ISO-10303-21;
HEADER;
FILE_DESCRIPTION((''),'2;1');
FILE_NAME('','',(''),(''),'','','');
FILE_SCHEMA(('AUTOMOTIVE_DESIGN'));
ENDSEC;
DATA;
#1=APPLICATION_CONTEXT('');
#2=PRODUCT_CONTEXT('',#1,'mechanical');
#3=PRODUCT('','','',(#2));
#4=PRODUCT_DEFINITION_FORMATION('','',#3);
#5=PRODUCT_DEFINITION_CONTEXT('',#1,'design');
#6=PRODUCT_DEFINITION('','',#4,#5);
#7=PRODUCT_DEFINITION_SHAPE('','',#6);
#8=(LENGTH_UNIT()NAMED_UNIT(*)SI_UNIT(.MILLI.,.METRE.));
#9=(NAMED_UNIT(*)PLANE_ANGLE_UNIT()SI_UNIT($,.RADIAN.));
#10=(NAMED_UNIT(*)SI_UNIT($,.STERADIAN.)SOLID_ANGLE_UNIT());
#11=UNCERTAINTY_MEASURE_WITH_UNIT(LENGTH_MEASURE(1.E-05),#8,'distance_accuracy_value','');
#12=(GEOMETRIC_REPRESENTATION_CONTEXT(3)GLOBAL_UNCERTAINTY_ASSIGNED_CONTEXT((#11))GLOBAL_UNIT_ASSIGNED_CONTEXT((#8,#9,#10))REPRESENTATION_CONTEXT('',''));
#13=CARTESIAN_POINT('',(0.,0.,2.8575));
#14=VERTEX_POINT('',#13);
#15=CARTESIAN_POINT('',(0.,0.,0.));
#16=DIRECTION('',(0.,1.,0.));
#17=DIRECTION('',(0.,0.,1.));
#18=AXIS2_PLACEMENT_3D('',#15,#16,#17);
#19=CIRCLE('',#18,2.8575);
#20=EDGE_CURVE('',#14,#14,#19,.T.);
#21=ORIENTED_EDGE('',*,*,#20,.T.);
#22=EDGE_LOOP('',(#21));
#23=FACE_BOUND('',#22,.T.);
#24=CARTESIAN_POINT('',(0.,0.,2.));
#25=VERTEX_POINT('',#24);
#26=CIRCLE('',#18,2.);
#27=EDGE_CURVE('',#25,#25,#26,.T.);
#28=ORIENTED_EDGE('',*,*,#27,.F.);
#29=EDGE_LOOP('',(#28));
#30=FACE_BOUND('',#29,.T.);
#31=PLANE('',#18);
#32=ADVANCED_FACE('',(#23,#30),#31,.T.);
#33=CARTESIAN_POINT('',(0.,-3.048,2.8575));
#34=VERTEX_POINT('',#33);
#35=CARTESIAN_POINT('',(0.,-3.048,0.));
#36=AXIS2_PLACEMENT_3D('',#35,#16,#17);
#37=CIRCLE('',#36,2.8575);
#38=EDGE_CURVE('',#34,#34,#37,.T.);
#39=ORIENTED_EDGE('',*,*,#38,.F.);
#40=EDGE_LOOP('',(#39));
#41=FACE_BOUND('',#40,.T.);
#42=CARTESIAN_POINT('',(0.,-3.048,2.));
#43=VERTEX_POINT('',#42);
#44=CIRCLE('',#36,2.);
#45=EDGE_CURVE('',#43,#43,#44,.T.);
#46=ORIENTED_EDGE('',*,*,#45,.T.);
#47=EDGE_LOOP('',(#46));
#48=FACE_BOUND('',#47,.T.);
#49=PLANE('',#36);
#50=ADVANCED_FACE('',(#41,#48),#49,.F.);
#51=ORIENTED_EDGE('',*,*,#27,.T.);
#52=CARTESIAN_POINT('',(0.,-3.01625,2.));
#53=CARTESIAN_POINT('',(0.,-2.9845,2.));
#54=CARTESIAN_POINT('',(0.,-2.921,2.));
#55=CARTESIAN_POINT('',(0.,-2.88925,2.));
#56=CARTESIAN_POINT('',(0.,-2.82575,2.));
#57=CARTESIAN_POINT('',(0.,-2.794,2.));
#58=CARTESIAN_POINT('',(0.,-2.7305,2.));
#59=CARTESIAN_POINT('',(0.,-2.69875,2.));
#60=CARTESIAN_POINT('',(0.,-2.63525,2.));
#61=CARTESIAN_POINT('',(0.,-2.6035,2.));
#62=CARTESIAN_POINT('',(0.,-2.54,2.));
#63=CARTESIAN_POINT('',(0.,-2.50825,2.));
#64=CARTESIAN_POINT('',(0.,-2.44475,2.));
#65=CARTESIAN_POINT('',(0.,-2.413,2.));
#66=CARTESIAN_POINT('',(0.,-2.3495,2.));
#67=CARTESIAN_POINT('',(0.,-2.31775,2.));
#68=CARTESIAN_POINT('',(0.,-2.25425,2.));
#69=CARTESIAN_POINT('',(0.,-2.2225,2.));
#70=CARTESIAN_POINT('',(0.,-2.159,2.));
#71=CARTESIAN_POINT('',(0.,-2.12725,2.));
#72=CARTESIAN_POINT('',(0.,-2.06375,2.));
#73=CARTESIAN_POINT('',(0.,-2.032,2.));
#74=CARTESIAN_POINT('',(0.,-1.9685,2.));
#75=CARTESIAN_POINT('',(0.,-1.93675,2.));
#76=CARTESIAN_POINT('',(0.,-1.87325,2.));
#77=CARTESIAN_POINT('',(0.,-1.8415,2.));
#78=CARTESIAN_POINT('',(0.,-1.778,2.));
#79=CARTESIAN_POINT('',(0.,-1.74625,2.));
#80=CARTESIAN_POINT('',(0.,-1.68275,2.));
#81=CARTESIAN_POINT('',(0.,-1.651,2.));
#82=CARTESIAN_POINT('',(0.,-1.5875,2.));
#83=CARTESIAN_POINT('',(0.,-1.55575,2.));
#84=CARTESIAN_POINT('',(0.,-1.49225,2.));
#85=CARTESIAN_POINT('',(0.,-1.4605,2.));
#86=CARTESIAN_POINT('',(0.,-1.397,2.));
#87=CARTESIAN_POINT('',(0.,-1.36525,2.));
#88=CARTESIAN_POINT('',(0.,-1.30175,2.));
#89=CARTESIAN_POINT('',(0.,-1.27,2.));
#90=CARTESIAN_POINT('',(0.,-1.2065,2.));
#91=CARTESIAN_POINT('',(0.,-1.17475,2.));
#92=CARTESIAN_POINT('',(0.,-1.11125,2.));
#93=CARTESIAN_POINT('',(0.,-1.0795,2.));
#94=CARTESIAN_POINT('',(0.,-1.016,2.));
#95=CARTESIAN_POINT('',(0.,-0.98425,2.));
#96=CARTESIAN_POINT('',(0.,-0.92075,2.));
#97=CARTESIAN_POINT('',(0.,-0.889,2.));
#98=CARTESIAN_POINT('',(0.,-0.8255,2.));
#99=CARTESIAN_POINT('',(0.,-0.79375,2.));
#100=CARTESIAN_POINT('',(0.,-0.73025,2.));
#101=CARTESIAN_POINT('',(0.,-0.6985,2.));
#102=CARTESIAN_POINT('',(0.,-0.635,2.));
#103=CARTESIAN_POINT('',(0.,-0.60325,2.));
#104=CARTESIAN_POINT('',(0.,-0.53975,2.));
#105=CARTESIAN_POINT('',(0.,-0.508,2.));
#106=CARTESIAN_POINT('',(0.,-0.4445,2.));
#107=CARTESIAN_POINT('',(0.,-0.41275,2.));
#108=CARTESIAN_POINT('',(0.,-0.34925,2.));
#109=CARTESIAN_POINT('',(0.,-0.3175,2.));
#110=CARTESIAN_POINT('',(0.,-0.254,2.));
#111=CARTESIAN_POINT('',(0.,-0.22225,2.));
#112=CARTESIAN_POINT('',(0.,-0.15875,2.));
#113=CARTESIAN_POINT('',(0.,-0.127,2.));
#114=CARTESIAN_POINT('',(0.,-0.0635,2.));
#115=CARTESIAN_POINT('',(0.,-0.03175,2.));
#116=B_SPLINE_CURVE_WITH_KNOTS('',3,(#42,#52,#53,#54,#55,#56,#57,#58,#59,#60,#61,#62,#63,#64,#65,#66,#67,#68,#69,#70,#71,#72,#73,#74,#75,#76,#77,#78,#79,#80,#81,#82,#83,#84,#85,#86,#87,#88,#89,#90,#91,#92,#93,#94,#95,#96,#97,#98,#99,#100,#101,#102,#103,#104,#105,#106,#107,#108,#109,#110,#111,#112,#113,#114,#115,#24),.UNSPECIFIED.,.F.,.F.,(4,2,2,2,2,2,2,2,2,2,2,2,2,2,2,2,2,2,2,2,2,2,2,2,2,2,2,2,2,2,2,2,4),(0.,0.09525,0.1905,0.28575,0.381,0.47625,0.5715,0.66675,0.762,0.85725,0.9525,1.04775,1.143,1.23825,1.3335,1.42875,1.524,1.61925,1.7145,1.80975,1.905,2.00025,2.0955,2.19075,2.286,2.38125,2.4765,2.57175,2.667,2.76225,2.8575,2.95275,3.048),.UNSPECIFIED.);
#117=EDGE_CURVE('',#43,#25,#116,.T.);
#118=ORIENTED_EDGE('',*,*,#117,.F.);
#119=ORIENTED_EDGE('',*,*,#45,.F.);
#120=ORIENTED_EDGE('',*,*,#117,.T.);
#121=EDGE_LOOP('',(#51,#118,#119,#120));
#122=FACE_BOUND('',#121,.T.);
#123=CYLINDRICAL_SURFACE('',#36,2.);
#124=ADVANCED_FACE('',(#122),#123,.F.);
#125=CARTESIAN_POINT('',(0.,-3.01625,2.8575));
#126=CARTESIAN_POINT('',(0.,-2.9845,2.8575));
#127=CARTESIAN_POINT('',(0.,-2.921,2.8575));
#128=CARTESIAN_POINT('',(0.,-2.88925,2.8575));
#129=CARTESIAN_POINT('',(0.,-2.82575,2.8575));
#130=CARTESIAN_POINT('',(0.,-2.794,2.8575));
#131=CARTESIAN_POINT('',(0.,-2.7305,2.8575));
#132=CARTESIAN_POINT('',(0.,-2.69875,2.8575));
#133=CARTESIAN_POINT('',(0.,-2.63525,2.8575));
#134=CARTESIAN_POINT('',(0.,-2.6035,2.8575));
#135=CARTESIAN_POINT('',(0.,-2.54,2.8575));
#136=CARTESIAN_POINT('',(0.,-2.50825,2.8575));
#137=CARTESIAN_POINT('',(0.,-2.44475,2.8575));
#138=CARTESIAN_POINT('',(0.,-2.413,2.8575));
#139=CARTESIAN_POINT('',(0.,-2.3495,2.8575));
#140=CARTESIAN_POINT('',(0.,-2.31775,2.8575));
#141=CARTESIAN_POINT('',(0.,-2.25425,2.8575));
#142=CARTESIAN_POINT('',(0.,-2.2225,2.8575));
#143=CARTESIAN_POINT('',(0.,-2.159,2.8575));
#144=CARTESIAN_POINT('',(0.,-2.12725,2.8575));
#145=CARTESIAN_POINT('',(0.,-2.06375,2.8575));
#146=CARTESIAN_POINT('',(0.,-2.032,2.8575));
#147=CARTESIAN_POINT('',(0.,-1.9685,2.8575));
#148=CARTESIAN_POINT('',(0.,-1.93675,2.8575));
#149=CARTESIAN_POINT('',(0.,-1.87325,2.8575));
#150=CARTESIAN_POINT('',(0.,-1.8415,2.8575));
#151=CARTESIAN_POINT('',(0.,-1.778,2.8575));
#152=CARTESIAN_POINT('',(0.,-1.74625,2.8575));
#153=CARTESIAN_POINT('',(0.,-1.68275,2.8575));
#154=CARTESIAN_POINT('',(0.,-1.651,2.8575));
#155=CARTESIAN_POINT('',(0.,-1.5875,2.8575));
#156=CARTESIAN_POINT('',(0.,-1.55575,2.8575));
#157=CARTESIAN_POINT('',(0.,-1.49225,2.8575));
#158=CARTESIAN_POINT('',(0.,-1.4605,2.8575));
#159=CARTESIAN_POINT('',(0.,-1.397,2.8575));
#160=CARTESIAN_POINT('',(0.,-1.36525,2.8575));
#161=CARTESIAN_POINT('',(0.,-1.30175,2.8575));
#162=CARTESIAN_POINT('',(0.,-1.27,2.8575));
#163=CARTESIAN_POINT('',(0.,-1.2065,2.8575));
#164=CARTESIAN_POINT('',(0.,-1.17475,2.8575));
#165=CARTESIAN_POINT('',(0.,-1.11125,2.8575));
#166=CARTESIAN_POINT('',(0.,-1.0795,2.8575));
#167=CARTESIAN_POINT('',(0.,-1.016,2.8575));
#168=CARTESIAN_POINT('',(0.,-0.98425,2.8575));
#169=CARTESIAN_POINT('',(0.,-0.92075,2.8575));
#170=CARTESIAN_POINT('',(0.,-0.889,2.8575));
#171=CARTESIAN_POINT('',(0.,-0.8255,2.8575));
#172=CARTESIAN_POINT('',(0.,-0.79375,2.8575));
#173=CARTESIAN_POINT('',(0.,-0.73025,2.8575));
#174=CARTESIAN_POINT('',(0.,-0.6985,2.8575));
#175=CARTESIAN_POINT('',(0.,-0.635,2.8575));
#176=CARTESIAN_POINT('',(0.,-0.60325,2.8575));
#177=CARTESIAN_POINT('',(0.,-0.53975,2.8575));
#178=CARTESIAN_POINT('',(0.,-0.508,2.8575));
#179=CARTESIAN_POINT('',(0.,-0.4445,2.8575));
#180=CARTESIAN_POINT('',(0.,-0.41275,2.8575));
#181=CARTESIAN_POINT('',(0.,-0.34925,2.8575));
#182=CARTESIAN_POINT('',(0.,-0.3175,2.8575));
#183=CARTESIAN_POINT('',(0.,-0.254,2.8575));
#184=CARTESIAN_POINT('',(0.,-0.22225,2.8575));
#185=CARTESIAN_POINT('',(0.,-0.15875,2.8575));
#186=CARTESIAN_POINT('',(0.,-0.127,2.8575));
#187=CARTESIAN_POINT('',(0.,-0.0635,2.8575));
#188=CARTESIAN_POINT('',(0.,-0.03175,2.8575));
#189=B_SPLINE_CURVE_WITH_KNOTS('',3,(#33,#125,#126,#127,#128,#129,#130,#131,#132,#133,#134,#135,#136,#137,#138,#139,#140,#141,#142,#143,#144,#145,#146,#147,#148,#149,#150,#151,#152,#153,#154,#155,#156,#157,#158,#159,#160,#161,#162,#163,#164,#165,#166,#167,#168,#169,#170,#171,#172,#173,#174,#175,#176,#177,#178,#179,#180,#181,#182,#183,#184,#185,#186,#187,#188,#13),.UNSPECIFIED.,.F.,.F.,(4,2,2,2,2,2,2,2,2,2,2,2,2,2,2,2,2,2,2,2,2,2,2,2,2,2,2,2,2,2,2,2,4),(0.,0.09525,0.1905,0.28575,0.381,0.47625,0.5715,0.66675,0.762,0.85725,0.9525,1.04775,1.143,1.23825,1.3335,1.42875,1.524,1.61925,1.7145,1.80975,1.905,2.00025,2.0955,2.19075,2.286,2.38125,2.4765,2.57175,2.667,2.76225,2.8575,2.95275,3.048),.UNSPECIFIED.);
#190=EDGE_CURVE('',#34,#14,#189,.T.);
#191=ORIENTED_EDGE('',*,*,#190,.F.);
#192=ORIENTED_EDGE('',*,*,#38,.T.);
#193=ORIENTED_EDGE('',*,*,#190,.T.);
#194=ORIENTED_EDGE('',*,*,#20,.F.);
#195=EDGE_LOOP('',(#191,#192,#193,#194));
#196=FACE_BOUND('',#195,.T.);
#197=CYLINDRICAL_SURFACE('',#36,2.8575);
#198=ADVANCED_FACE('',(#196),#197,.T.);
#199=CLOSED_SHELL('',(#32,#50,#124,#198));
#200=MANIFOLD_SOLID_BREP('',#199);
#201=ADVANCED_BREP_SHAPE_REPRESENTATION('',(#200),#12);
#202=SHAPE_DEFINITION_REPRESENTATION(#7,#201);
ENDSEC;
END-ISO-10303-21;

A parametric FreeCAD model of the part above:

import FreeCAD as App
import Part
import Sketcher
from FreeCAD import Vector
Q = App.Units.Quantity

doc = App.newDocument("Part")
params = doc.addObject("Spreadsheet::Sheet", "Params")
for row, (alias, value) in enumerate([
    ("sketch1_diameter", "0.225 in"),
    ("pad1_length", "0.12 in"),
], start=1):
    params.set(f"A{row}", alias)
    params.set(f"B{row}", "=" + value)
    params.setAlias(f"B{row}", alias)

body = doc.addObject("PartDesign::Body", "Body")

# Sketch on XZ plane
sketch1 = body.newObject("Sketcher::SketchObject", "Sketch")
sketch1.AttachmentSupport = (doc.getObject("XZ_Plane"), [""])
sketch1.MapMode = "FlatFace"
sketch1.addGeometry(Part.Circle(Vector(0, 0, 0), Vector(0, 0, 1), 2.8575), False)
sketch1.addGeometry(Part.Circle(Vector(0, 0, 0), Vector(0, 0, 1), 2), False)
sketch1.addConstraint(Sketcher.Constraint("Coincident", 0, 3, -1, 1))
sketch1.addConstraint(Sketcher.Constraint("Coincident", 1, 3, -1, 1))
sketch1.addConstraint(Sketcher.Constraint("Diameter", 0, Q("0.225 in")))
sketch1.addConstraint(Sketcher.Constraint("Diameter", 1, 4.0))
sketch1.setExpression("Constraints[2]", "Params.sketch1_diameter")
pad1 = body.newObject("PartDesign::Pad", "Pad")
pad1.Profile = sketch1
pad1.setExpression("Length", "Params.pad1_length")

doc.recompute()
